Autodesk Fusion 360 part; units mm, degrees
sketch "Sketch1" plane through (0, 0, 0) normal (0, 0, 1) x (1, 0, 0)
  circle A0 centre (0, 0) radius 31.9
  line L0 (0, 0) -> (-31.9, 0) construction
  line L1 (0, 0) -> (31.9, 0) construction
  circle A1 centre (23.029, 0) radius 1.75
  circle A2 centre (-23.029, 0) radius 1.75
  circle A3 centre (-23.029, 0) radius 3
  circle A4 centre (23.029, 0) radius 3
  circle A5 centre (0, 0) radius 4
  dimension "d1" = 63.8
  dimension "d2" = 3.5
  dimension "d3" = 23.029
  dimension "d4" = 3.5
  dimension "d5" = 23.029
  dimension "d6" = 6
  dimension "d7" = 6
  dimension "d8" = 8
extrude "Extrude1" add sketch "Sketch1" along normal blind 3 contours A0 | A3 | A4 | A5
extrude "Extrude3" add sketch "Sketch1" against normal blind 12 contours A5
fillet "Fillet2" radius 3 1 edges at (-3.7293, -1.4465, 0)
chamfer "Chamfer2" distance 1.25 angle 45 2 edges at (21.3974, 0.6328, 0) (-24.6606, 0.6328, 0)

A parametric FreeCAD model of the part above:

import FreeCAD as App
import Part
import Sketcher


def edges_at(feature, points):
    """Names of the edges that pass closest to the given points."""
    edges = feature.Shape.Edges
    near = lambda p: min(range(len(edges)), key=lambda i: edges[i].distToShape(Part.Vertex(*p))[0])
    return sorted({f"Edge{near(p) + 1}" for p in points})

doc = App.newDocument("Part")
body = doc.addObject("PartDesign::Body", "Body")

sketch1 = doc.addObject("Sketcher::SketchObject", "Sketch")
body.addObject(sketch1)
sketch1.AttachmentSupport = (doc.XY_Plane, [""])
sketch1.MapMode = "FlatFace"
sketch1.addGeometry(Part.Circle(App.Vector(0, 0, 0), App.Vector(0, 0, 1), 31.9), False)
sketch1.addGeometry(Part.Circle(App.Vector(-23, 0, 0), App.Vector(0, 0, 1), 1.8), False)
sketch1.addGeometry(Part.Circle(App.Vector(23, 0, 0), App.Vector(0, 0, 1), 1.8), False)
sketch1.addConstraint(Sketcher.Constraint("Coincident", 0, 3, -1, 1))
sketch1.addConstraint(Sketcher.Constraint("Equal", 1, 2))
sketch1.addConstraint(Sketcher.Constraint("Symmetric", 1, 3, 2, 3, -1, 1))
sketch1.addConstraint(Sketcher.Constraint("PointOnObject", 1, 3, -1))
sketch1.addConstraint(Sketcher.Constraint("Diameter", 0, 63.8))
sketch1.addConstraint(Sketcher.Constraint("Diameter", 1, 3.5))
sketch1.addConstraint(Sketcher.Constraint("DistanceX", 1, 3, -1, 1, 23.029))
pad1 = doc.addObject("PartDesign::Pad", "Pad")
body.addObject(pad1)
pad1.Profile = sketch1
pad1.Length = 3

sketch2 = doc.addObject("Sketcher::SketchObject", "Sketch001")
body.addObject(sketch2)
sketch2.AttachmentSupport = (doc.XY_Plane, [""])
sketch2.MapMode = "FlatFace"
sketch2.addGeometry(Part.Circle(App.Vector(0, 0, 0), App.Vector(0, 0, 1), 4), False)
sketch2.addConstraint(Sketcher.Constraint("Coincident", 0, 3, -1, 1))
sketch2.addConstraint(Sketcher.Constraint("Diameter", 0, 8.0))
pad2 = doc.addObject("PartDesign::Pad", "Pad001")
body.addObject(pad2)
pad2.Profile = sketch2
pad2.Length = 12
pad2.Reversed = True
doc.recompute()

fillet = doc.addObject("PartDesign::Fillet", "Fillet")
body.addObject(fillet)
fillet.Base = (pad2, edges_at(pad2, [(-3.729, -1.446, 0)]))
fillet.Radius = 3
doc.recompute()

chamfer = doc.addObject("PartDesign::Chamfer", "Chamfer")
body.addObject(chamfer)
chamfer.Base = (fillet, edges_at(fillet, [(21.397, 0.633, 0), (-24.661, 0.633, 0)]))
chamfer.Size = 1.25

doc.recompute()
